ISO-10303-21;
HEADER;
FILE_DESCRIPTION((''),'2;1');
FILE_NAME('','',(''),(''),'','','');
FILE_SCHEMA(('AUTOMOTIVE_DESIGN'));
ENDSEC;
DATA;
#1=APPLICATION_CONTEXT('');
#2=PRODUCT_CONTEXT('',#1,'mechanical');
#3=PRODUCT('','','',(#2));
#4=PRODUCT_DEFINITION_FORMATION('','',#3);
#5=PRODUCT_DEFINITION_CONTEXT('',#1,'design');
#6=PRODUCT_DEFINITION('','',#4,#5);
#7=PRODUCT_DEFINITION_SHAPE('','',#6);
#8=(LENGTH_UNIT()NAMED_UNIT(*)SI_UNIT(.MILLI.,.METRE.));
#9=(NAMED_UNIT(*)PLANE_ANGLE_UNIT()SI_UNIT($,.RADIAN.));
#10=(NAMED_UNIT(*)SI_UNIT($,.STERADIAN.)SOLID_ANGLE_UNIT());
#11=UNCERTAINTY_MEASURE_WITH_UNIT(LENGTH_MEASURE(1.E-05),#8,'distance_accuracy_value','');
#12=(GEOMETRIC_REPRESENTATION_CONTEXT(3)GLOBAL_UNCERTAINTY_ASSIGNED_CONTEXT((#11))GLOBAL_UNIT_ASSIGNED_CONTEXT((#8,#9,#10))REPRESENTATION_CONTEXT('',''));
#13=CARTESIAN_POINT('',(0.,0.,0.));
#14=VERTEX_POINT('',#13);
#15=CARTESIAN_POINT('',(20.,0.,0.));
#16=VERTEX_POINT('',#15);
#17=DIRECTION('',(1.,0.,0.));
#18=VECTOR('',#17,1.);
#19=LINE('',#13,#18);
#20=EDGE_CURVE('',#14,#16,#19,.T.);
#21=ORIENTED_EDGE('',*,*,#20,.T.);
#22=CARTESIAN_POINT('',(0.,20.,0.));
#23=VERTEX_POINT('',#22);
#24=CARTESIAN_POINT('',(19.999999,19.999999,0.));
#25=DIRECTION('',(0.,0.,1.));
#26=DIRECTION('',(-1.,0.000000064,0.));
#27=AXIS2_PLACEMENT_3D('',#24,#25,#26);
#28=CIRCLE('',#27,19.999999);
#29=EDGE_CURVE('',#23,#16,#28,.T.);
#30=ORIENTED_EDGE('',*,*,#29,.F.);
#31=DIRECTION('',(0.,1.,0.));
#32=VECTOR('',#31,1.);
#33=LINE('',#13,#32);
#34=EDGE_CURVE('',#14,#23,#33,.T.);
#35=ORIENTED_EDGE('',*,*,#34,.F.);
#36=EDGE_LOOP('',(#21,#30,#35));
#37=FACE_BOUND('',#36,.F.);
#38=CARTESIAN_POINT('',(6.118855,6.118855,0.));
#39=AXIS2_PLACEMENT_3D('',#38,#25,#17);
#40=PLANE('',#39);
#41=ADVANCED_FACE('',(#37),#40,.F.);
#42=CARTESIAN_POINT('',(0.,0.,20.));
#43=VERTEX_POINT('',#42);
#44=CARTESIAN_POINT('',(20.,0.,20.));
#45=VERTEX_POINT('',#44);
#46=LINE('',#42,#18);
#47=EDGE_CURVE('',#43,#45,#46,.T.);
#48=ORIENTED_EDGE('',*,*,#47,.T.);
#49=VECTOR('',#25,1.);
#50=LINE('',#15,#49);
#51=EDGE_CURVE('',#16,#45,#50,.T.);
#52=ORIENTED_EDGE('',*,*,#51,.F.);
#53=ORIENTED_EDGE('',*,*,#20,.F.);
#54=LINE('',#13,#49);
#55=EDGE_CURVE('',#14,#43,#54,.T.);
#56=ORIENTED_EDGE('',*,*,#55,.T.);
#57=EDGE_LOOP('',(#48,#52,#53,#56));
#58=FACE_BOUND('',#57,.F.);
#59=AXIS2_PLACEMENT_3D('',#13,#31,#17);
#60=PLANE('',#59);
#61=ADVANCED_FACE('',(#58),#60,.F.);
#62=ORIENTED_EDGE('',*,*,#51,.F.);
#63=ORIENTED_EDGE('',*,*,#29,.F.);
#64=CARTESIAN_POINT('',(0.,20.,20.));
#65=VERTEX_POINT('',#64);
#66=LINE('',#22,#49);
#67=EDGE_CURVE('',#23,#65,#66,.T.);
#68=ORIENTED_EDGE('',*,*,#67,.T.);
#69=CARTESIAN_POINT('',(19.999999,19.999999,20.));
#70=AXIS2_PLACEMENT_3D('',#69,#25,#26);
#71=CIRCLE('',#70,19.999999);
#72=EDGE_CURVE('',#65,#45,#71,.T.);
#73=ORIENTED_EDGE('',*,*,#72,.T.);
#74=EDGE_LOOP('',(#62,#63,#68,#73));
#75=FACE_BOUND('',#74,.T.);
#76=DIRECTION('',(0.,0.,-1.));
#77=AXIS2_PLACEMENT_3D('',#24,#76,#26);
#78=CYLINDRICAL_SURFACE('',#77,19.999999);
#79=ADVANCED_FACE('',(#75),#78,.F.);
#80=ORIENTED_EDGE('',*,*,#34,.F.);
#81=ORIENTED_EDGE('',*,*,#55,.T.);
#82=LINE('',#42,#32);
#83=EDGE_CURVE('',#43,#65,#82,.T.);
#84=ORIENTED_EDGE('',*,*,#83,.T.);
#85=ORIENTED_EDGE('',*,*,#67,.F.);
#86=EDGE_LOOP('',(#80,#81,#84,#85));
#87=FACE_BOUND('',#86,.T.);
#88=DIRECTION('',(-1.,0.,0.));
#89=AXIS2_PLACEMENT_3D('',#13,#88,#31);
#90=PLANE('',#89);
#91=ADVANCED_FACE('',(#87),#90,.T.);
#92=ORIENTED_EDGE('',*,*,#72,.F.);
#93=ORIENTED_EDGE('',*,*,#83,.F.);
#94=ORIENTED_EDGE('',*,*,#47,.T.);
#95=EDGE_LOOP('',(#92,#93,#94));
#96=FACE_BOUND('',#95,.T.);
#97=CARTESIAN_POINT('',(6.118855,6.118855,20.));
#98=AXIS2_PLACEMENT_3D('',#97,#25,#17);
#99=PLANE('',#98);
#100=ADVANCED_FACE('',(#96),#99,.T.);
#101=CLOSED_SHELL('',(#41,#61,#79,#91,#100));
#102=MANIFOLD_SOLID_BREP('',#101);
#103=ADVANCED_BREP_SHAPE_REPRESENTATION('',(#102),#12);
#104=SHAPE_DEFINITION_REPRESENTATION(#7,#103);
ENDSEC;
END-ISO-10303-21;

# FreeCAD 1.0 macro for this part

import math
import FreeCAD as App
import Part
import Sketcher

V = App.Vector

doc = App.newDocument("Part")
body = doc.addObject("PartDesign::Body", "Body")

sketch1 = body.newObject("Sketcher::SketchObject", "Sketch")
sketch1.AttachmentSupport = (doc.getObject("XY_Plane"), [""])
sketch1.MapMode = "FlatFace"
sketch1.addGeometry([
    Part.LineSegment(V(0, 0, 0), V(20, 0, 0)),
    Part.ArcOfCircle(Part.Circle(V(19.999999, 19.999999, 0), V(0, 0, 1), 19.999999), math.radians(179.999996), math.radians(270.000004)),
    Part.LineSegment(V(0, 20, 0), V(0, 0, 0)),
], False)
sketch1.addConstraint([
    Sketcher.Constraint("Tangent", 0, 2, 1, 2),
    Sketcher.Constraint("Tangent", 1, 1, 2, 1),
    Sketcher.Constraint("Coincident", 2, 2, 0, 1),
    Sketcher.Constraint("Horizontal", 0),
    Sketcher.Constraint("Vertical", 2),
    Sketcher.Constraint("Coincident", 2, 2, -1, 1),
    Sketcher.Constraint("Radius", 1, 19.999999),
])
pad1 = body.newObject("PartDesign::Pad", "Pad")
pad1.Profile = sketch1
pad1.Length = 20

doc.recompute()
